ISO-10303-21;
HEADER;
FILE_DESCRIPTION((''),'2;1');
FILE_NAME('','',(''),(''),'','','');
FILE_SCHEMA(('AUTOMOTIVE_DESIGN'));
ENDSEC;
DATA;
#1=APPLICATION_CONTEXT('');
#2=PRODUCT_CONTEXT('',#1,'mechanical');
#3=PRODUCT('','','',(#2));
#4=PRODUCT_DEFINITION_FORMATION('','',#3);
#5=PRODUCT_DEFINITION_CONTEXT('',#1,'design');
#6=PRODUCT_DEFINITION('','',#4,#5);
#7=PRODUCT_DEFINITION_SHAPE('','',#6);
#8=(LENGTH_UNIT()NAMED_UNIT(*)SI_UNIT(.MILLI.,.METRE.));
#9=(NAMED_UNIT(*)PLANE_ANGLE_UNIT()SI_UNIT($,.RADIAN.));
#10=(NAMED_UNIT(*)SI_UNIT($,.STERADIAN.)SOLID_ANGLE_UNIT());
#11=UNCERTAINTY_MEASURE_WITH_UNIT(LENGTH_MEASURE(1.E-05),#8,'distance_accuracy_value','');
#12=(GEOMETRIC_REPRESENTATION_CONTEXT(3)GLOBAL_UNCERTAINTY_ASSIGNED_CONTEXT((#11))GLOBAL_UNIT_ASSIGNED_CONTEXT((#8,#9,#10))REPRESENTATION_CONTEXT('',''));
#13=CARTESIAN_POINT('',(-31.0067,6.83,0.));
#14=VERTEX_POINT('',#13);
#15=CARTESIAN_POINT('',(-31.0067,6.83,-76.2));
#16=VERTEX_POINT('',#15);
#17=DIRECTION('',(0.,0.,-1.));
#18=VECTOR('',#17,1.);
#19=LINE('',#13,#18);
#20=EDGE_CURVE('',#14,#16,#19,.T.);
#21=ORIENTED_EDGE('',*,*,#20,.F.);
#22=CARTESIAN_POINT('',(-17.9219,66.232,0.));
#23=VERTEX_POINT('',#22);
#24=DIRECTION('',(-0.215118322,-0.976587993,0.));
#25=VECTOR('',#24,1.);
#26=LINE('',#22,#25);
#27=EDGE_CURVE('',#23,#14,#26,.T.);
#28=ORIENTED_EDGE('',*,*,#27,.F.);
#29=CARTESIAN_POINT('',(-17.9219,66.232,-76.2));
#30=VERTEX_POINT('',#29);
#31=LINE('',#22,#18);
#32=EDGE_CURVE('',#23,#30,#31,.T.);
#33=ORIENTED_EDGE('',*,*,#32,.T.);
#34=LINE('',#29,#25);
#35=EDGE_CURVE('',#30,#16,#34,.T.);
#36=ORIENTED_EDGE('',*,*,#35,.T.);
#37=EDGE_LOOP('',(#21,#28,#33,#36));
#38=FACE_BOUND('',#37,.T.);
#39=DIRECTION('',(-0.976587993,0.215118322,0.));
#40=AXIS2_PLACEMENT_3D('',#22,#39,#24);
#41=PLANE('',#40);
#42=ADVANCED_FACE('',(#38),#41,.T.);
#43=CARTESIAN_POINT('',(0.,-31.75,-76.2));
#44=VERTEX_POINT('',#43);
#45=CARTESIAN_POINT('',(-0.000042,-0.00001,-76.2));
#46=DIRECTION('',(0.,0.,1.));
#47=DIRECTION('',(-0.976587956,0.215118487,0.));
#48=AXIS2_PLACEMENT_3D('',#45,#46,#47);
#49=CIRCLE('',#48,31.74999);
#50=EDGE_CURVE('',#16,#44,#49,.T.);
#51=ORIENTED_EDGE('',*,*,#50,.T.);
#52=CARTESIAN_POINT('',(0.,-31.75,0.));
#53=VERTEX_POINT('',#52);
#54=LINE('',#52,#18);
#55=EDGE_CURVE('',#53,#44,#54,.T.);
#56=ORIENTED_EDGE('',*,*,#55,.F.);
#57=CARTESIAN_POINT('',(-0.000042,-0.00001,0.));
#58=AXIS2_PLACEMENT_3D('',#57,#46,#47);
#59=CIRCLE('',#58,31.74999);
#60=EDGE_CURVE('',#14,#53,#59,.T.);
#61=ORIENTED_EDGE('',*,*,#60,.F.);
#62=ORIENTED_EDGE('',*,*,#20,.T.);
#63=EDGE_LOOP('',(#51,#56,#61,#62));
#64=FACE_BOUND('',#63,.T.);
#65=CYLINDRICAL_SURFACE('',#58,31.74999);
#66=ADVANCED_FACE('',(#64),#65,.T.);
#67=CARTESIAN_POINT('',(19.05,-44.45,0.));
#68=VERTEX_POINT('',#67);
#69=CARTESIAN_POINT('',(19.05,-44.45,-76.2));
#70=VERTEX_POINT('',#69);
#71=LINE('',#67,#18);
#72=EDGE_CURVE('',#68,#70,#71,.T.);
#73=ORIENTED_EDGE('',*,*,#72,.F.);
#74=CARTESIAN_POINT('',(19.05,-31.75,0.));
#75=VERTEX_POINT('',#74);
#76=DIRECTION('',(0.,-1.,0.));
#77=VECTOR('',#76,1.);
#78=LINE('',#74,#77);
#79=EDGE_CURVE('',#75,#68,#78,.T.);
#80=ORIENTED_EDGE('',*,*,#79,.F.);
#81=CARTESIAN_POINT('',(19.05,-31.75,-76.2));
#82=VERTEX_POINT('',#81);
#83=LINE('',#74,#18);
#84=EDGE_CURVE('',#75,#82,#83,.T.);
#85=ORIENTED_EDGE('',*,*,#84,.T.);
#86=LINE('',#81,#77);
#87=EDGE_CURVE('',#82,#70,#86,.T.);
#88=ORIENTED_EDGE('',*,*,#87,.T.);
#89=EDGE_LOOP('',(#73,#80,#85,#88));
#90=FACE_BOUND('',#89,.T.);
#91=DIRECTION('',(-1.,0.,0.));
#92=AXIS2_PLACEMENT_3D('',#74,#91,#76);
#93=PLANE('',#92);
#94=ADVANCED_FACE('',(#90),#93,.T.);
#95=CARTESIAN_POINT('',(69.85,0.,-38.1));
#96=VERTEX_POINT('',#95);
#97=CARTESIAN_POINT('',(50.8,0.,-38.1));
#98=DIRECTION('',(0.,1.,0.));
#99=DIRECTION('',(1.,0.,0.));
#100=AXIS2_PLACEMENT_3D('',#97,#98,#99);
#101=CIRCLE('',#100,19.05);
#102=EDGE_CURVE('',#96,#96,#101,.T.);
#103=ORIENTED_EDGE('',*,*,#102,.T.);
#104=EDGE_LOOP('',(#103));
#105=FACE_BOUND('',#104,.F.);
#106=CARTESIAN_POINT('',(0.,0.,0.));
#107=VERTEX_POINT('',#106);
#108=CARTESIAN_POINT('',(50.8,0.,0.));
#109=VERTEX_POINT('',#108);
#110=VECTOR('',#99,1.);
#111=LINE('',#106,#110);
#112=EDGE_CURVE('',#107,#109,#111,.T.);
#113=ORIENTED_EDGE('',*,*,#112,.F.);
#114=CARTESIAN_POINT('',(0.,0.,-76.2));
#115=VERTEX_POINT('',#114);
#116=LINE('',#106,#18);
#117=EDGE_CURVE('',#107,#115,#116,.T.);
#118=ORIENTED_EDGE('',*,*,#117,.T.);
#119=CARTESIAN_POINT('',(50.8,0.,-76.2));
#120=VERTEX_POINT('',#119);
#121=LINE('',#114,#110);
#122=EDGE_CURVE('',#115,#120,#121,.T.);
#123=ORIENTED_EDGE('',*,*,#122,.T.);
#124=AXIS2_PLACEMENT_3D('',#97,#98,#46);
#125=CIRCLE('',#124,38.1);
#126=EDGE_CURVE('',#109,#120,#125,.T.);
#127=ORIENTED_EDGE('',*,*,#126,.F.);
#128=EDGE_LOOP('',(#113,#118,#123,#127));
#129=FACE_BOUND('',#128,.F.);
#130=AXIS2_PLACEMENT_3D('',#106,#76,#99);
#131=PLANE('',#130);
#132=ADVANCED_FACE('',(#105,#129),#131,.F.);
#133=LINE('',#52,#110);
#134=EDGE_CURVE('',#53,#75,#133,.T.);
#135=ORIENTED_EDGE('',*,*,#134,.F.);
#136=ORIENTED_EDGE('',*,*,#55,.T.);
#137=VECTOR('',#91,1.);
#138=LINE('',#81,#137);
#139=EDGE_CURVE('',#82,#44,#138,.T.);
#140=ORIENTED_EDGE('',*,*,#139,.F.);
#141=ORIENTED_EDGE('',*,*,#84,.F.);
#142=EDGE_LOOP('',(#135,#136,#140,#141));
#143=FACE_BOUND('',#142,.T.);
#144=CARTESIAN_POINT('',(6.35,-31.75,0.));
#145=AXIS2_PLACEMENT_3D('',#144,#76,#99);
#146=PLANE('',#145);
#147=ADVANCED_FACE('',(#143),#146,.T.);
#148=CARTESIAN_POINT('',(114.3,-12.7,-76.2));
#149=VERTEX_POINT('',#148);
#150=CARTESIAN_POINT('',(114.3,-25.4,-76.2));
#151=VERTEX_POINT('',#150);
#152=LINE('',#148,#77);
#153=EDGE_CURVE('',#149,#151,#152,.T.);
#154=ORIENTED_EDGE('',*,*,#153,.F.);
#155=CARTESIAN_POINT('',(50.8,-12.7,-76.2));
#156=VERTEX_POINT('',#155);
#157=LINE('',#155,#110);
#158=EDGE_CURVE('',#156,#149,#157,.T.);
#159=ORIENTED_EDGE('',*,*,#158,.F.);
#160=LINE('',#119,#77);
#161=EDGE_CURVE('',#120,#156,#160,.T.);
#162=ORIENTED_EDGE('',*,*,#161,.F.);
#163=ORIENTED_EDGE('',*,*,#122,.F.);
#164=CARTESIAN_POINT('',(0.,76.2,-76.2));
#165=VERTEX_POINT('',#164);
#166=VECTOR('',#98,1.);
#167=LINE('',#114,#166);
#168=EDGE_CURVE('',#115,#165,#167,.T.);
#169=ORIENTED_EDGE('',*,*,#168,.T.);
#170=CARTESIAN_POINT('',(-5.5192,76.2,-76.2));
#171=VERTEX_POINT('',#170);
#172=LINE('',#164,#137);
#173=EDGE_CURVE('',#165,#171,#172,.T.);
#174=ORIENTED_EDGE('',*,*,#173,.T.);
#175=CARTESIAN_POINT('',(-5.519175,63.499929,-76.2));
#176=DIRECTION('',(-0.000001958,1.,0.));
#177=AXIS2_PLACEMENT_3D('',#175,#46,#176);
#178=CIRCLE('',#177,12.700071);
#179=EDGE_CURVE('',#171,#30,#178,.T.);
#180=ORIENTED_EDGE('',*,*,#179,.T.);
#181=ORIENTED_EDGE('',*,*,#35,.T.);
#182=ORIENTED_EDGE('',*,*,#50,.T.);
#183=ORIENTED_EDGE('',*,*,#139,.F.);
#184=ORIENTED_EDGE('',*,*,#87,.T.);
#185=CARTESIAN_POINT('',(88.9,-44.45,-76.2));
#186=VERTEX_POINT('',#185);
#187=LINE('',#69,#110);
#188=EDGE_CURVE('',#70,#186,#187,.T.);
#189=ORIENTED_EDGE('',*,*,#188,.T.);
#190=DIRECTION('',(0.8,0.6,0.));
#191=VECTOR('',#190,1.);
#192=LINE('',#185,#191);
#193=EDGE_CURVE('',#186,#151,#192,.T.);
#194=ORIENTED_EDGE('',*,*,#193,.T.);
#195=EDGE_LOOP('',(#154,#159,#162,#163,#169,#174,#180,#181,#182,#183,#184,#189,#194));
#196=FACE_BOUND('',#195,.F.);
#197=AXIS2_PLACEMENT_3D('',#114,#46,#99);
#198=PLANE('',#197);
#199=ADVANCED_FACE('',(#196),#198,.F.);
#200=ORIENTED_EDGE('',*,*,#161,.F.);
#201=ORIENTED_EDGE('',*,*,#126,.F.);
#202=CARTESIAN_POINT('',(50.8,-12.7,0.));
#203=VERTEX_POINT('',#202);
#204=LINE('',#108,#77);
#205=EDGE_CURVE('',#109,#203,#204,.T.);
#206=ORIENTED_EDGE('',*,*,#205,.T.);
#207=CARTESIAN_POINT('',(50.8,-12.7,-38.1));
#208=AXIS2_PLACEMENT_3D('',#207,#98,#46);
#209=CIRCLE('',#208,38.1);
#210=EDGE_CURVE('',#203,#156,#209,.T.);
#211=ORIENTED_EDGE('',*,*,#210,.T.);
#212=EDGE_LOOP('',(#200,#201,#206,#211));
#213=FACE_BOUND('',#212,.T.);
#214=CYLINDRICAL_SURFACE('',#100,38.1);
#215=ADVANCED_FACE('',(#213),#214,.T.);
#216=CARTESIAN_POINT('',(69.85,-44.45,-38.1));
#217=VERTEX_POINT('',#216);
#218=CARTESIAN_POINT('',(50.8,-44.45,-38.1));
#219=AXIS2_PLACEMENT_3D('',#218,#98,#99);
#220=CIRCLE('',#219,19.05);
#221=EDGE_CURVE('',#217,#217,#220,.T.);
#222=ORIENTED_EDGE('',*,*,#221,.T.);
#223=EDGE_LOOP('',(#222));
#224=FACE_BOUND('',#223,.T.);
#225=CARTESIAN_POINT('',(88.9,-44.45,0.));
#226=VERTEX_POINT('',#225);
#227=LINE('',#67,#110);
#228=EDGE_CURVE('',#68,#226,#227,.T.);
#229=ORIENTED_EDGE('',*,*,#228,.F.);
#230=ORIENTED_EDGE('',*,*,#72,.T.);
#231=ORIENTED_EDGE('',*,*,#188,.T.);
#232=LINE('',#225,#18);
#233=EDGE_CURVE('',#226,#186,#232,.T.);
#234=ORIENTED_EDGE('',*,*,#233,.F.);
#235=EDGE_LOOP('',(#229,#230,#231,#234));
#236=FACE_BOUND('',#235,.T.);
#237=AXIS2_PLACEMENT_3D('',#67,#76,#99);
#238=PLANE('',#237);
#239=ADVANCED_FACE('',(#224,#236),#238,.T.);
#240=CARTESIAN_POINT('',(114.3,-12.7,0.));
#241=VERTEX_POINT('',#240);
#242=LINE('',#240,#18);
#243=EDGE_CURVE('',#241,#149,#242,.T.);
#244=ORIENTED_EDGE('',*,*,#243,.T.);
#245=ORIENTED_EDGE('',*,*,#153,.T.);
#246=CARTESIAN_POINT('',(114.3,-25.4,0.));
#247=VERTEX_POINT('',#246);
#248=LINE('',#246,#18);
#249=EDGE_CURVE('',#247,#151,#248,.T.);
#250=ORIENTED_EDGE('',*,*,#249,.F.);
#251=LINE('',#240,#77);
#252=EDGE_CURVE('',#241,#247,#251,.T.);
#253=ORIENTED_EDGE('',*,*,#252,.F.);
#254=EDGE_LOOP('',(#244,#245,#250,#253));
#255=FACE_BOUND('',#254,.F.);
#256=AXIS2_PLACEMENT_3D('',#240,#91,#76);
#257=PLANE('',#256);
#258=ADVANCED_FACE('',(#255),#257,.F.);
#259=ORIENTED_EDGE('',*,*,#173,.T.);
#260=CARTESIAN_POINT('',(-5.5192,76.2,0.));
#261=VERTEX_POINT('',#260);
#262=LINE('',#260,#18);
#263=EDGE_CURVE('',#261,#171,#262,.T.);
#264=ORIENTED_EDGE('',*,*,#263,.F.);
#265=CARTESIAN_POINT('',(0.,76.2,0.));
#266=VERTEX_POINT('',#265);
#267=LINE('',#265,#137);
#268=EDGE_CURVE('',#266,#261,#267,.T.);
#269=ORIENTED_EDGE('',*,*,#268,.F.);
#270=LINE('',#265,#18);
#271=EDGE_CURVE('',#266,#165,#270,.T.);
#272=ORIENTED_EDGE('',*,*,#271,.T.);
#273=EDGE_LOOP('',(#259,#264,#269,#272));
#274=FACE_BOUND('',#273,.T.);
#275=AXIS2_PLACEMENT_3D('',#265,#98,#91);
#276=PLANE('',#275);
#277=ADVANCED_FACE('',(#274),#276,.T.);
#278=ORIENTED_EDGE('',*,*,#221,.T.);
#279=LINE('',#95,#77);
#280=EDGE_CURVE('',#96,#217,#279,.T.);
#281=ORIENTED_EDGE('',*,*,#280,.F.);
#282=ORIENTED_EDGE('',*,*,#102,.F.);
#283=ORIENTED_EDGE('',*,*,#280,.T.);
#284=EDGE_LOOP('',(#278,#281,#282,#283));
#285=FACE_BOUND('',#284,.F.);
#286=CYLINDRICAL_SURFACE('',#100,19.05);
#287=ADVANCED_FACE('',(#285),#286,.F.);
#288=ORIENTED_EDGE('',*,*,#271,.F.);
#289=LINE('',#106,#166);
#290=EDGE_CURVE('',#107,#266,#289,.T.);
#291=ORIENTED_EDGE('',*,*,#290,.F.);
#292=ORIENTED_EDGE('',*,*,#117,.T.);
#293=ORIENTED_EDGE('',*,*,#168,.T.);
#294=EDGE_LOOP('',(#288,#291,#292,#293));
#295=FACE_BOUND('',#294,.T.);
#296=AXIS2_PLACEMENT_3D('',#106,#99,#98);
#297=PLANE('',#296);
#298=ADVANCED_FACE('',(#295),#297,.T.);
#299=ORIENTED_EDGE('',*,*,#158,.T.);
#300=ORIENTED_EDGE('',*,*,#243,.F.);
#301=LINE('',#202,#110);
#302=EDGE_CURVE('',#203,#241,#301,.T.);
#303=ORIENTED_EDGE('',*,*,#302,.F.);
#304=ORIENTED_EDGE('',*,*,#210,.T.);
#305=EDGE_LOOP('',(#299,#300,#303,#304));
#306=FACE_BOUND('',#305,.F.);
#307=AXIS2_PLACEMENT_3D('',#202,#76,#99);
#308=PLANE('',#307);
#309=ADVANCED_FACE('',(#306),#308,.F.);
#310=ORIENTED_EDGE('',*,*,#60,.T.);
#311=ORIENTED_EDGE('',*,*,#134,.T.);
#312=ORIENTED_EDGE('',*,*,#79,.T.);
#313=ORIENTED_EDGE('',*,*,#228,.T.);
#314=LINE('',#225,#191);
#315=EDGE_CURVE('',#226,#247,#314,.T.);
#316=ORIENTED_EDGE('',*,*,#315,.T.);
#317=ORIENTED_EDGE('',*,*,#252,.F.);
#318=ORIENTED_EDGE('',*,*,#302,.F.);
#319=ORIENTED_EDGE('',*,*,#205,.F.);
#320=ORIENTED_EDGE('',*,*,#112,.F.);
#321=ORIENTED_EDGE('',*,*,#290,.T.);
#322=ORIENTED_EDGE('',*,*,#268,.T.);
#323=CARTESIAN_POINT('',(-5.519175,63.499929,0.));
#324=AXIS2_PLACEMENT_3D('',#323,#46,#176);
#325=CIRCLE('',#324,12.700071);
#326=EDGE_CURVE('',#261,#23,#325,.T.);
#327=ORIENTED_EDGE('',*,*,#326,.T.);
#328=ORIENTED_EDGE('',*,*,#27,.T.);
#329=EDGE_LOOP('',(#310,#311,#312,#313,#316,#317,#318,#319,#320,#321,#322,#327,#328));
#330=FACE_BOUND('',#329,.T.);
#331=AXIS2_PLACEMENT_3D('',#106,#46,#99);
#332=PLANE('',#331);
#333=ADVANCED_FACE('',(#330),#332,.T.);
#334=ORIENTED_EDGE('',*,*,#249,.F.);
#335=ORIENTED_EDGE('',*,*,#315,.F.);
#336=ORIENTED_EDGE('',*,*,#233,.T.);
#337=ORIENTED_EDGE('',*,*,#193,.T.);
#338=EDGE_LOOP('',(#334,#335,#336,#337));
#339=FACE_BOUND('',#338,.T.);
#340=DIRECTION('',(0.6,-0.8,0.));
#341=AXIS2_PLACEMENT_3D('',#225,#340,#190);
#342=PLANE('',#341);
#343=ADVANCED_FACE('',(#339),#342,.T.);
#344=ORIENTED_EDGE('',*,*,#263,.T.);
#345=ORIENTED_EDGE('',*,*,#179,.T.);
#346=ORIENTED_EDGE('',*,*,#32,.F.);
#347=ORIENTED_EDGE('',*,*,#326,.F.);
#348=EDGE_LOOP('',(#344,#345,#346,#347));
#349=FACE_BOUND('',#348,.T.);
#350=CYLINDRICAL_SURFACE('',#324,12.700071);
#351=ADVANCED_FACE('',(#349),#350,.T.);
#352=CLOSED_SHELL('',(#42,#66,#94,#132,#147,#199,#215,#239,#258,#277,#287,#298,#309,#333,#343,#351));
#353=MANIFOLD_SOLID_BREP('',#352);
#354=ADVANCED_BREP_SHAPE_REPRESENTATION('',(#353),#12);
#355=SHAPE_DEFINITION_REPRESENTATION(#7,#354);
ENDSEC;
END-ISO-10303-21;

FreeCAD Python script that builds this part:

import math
import FreeCAD as App
import Part
import Sketcher
from FreeCAD import Vector
Q = App.Units.Quantity

doc = App.newDocument("Part")
body = doc.addObject("PartDesign::Body", "Body")

sketch1 = doc.addObject("Sketcher::SketchObject", "Sketch")
body.addObject(sketch1)
sketch1.AttachmentSupport = (doc.XY_Plane, [""])
sketch1.MapMode = "FlatFace"
sketch1.addGeometry([
    Part.LineSegment(Vector(51, 0, 0), Vector(0, 0, 0)),
    Part.LineSegment(Vector(0, 0, 0), Vector(0, 76, 0)),
    Part.LineSegment(Vector(0, 76, 0), Vector(-6, 76, 0)),
    Part.ArcOfCircle(Part.Circle(Vector(-6, 64, 0), Vector(0, 0, 1), 13), math.radians(90), math.radians(168)),
    Part.LineSegment(Vector(-18, 66, 0), Vector(-31, 7, 0)),
    Part.ArcOfCircle(Part.Circle(Vector(0, 0, 0), Vector(0, 0, 1), 32), math.radians(168), math.radians(270)),
    Part.LineSegment(Vector(0, -32, 0), Vector(19, -32, 0)),
    Part.LineSegment(Vector(19, -32, 0), Vector(19, -44, 0)),
    Part.LineSegment(Vector(19, -44, 0), Vector(89, -44, 0)),
    Part.LineSegment(Vector(89, -44, 0), Vector(114, -25, 0)),
    Part.LineSegment(Vector(114, -25, 0), Vector(114, -13, 0)),
    Part.LineSegment(Vector(114, -13, 0), Vector(51, -13, 0)),
    Part.LineSegment(Vector(51, -13, 0), Vector(51, 0, 0)),
], False)
sketch1.addConstraint([
    Sketcher.Constraint("Coincident", 0, 2, 1, 1),
    Sketcher.Constraint("Coincident", 1, 2, 2, 1),
    Sketcher.Constraint("Tangent", 2, 2, 3, 1),
    Sketcher.Constraint("Tangent", 3, 2, 4, 1),
    Sketcher.Constraint("Tangent", 4, 2, 5, 1),
    Sketcher.Constraint("Tangent", 5, 2, 6, 1),
    Sketcher.Constraint("Coincident", 6, 2, 7, 1),
    Sketcher.Constraint("Coincident", 7, 2, 8, 1),
    Sketcher.Constraint("Coincident", 8, 2, 9, 1),
    Sketcher.Constraint("Coincident", 9, 2, 10, 1),
    Sketcher.Constraint("Coincident", 10, 2, 11, 1),
    Sketcher.Constraint("Coincident", 11, 2, 12, 1),
    Sketcher.Constraint("Coincident", 12, 2, 0, 1),
    Sketcher.Constraint("Horizontal", 0),
    Sketcher.Constraint("Vertical", 1),
    Sketcher.Constraint("Horizontal", 2),
    Sketcher.Constraint("Horizontal", 6),
    Sketcher.Constraint("Vertical", 7),
    Sketcher.Constraint("Horizontal", 8),
    Sketcher.Constraint("Vertical", 10),
    Sketcher.Constraint("Horizontal", 11),
    Sketcher.Constraint("Vertical", 12),
    Sketcher.Constraint("Coincident", 5, 3, -1, 1),
    Sketcher.Constraint("Coincident", 0, 2, -1, 1),
    Sketcher.Constraint("Equal", 7, 10),
    Sketcher.Constraint("Equal", 10, 12),
    Sketcher.Constraint("Radius", 3, Q("0.5 in")),
    Sketcher.Constraint("DistanceX", 0, 2, 0, 1, Q("2 in")),
    Sketcher.Constraint("DistanceY", 1, 1, 1, 2, Q("3 in")),
    Sketcher.Constraint("Radius", 5, Q("1.25 in")),
    Sketcher.Constraint("DistanceX", 11, 2, 11, 1, Q("2.5 in")),
    Sketcher.Constraint("DistanceY", 7, 2, 7, 1, Q("0.5 in")),
    Sketcher.Constraint("DistanceX", 6, 1, 6, 2, Q("0.75 in")),
    Sketcher.Constraint("DistanceX", 8, 1, 8, 2, Q("2.75 in")),
    Sketcher.Constraint("DistanceY", 4, 2, 3, 2, Q("59.402 mm")),
])
pad1 = doc.addObject("PartDesign::Pad", "Pad")
body.addObject(pad1)
pad1.Profile = sketch1
pad1.Length = Q("3 in")
pad1.Reversed = True

sketch2 = doc.addObject("Sketcher::SketchObject", "Sketch001")
body.addObject(sketch2)
sketch2.AttachmentSupport = (doc.XZ_Plane, [""])
sketch2.MapMode = "FlatFace"
sketch2.addGeometry(Part.Circle(Vector(51, -38, 0), Vector(0, 0, 1), 38), False)
sketch2.addConstraint([
    Sketcher.Constraint("Diameter", 0, Q("3 in")),
    Sketcher.Constraint("DistanceX", -1, 1, 0, 3, Q("2 in")),
    Sketcher.Constraint("DistanceY", 0, 3, -1, 1, Q("1.5 in")),
])
pad2 = doc.addObject("PartDesign::Pad", "Pad001")
body.addObject(pad2)
pad2.Profile = sketch2
pad2.Length = Q("0.5 in")

sketch3 = doc.addObject("Sketcher::SketchObject", "Sketch002")
body.addObject(sketch3)
sketch3.AttachmentSupport = (doc.XZ_Plane, [""])
sketch3.MapMode = "FlatFace"
sketch3.addGeometry(Part.Circle(Vector(51, -38, 0), Vector(0, 0, 1), 19), False)
sketch3.addConstraint([
    Sketcher.Constraint("Diameter", 0, Q("1.5 in")),
    Sketcher.Constraint("DistanceY", 0, 3, -1, 1, Q("1.5 in")),
    Sketcher.Constraint("DistanceX", -1, 1, 0, 3, Q("2 in")),
])
pocket1 = doc.addObject("PartDesign::Pocket", "Pocket")
body.addObject(pocket1)
pocket1.Profile = sketch3
pocket1.Type = "ThroughAll"
pocket1.Reversed = True

doc.recompute()
